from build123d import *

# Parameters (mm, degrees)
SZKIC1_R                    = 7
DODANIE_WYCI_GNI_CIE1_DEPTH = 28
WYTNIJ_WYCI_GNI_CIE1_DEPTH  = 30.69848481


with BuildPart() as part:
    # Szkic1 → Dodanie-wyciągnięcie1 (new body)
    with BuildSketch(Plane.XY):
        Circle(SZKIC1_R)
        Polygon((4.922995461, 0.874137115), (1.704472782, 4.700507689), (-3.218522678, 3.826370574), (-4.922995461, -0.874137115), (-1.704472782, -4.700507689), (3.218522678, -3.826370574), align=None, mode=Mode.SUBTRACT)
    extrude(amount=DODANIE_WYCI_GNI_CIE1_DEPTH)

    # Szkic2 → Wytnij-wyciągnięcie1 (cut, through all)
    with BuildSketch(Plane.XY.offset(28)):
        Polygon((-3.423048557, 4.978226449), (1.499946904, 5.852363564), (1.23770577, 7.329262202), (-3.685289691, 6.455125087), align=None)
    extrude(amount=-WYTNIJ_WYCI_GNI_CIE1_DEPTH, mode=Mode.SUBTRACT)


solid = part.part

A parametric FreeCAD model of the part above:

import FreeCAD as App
import Part
import Sketcher

V = App.Vector

doc = App.newDocument("Part")
body = doc.addObject("PartDesign::Body", "Body")

# Sketch on XY plane
sketch1 = body.newObject("Sketcher::SketchObject", "Sketch")
sketch1.AttachmentSupport = (doc.getObject("XY_Plane"), [""])
sketch1.MapMode = "FlatFace"
sketch1.addGeometry(Part.Circle(V(0, 0, 0), V(0, 0, 1), 7), False)
sketch1.addGeometry(Part.LineSegment(V(1.7, 4.7, 0), V(4.9, 0.9, 0)), False)
sketch1.addGeometry(Part.LineSegment(V(4.9, 0.9, 0), V(3.2, -3.8, 0)), False)
sketch1.addGeometry(Part.LineSegment(V(3.2, -3.8, 0), V(-1.7, -4.7, 0)), False)
sketch1.addGeometry(Part.LineSegment(V(-1.7, -4.7, 0), V(-4.9, -0.9, 0)), False)
sketch1.addGeometry(Part.LineSegment(V(-4.9, -0.9, 0), V(-3.2, 3.8, 0)), False)
sketch1.addGeometry(Part.LineSegment(V(-3.2, 3.8, 0), V(1.7, 4.7, 0)), False)
sketch1.addConstraint(Sketcher.Constraint("Coincident", 1, 2, 2, 1))
sketch1.addConstraint(Sketcher.Constraint("Coincident", 2, 2, 3, 1))
sketch1.addConstraint(Sketcher.Constraint("Coincident", 3, 2, 4, 1))
sketch1.addConstraint(Sketcher.Constraint("Coincident", 4, 2, 5, 1))
sketch1.addConstraint(Sketcher.Constraint("Coincident", 5, 2, 6, 1))
sketch1.addConstraint(Sketcher.Constraint("Coincident", 6, 2, 1, 1))
sketch1.addConstraint(Sketcher.Constraint("Coincident", 0, 3, -1, 1))
sketch1.addConstraint(Sketcher.Constraint("Symmetric", 1, 2, 4, 2, -1, 1))
sketch1.addConstraint(Sketcher.Constraint("Symmetric", 2, 2, 5, 2, -1, 1))
sketch1.addConstraint(Sketcher.Constraint("Symmetric", 3, 2, 6, 2, -1, 1))
sketch1.addConstraint(Sketcher.Constraint("Equal", 1, 2))
sketch1.addConstraint(Sketcher.Constraint("Equal", 2, 3))
sketch1.addConstraint(Sketcher.Constraint("Diameter", 0, 14.0))
sketch1.addConstraint(Sketcher.Constraint("Distance", 1, 5.0))
sketch1.addConstraint(Sketcher.Constraint("DistanceY", 2, 2, -1, 1, 3.826371))
sketch1.addConstraint(Sketcher.Constraint("DistanceX", 3, 2, 1, 2, 6.627468))
sketch1.addConstraint(Sketcher.Constraint("DistanceY", 3, 2, 4, 2, 3.826371))
pad1 = body.newObject("PartDesign::Pad", "Pad")
pad1.Profile = sketch1
pad1.Length = 28

# Sketch on XY plane
sketch2 = body.newObject("Sketcher::SketchObject", "Sketch001")
sketch2.AttachmentSupport = (doc.getObject("XY_Plane"), [""])
sketch2.MapMode = "FlatFace"
sketch2.AttachmentOffset = App.Placement(V(0, 0, 28), App.Rotation())
sketch2.addGeometry(Part.LineSegment(V(-3.4, 5, 0), V(1.5, 5.9, 0)), False)
sketch2.addGeometry(Part.LineSegment(V(1.5, 5.9, 0), V(1.2, 7.3, 0)), False)
sketch2.addGeometry(Part.LineSegment(V(1.2, 7.3, 0), V(-3.7, 6.5, 0)), False)
sketch2.addGeometry(Part.LineSegment(V(-3.7, 6.5, 0), V(-3.4, 5, 0)), False)
sketch2.addConstraint(Sketcher.Constraint("Coincident", 0, 2, 1, 1))
sketch2.addConstraint(Sketcher.Constraint("Coincident", 1, 2, 2, 1))
sketch2.addConstraint(Sketcher.Constraint("Coincident", 2, 2, 3, 1))
sketch2.addConstraint(Sketcher.Constraint("Coincident", 3, 2, 0, 1))
sketch2.addConstraint(Sketcher.Constraint("Perpendicular", 0, 1))
sketch2.addConstraint(Sketcher.Constraint("Perpendicular", 1, 2))
sketch2.addConstraint(Sketcher.Constraint("Perpendicular", 2, 3))
sketch2.addConstraint(Sketcher.Constraint("Distance", 0, 5.0))
sketch2.addConstraint(Sketcher.Constraint("Distance", 1, 1.5))
sketch2.addConstraint(Sketcher.Constraint("DistanceY", 0, 2, 1, 2, 1.476899))
sketch2.addConstraint(Sketcher.Constraint("DistanceX", 2, 2, -1, 1, 3.68529))
sketch2.addConstraint(Sketcher.Constraint("DistanceY", -1, 1, 0, 2, 5.852364))
pocket1 = body.newObject("PartDesign::Pocket", "Pocket")
pocket1.Profile = sketch2
pocket1.Type = "ThroughAll"

doc.recompute()
